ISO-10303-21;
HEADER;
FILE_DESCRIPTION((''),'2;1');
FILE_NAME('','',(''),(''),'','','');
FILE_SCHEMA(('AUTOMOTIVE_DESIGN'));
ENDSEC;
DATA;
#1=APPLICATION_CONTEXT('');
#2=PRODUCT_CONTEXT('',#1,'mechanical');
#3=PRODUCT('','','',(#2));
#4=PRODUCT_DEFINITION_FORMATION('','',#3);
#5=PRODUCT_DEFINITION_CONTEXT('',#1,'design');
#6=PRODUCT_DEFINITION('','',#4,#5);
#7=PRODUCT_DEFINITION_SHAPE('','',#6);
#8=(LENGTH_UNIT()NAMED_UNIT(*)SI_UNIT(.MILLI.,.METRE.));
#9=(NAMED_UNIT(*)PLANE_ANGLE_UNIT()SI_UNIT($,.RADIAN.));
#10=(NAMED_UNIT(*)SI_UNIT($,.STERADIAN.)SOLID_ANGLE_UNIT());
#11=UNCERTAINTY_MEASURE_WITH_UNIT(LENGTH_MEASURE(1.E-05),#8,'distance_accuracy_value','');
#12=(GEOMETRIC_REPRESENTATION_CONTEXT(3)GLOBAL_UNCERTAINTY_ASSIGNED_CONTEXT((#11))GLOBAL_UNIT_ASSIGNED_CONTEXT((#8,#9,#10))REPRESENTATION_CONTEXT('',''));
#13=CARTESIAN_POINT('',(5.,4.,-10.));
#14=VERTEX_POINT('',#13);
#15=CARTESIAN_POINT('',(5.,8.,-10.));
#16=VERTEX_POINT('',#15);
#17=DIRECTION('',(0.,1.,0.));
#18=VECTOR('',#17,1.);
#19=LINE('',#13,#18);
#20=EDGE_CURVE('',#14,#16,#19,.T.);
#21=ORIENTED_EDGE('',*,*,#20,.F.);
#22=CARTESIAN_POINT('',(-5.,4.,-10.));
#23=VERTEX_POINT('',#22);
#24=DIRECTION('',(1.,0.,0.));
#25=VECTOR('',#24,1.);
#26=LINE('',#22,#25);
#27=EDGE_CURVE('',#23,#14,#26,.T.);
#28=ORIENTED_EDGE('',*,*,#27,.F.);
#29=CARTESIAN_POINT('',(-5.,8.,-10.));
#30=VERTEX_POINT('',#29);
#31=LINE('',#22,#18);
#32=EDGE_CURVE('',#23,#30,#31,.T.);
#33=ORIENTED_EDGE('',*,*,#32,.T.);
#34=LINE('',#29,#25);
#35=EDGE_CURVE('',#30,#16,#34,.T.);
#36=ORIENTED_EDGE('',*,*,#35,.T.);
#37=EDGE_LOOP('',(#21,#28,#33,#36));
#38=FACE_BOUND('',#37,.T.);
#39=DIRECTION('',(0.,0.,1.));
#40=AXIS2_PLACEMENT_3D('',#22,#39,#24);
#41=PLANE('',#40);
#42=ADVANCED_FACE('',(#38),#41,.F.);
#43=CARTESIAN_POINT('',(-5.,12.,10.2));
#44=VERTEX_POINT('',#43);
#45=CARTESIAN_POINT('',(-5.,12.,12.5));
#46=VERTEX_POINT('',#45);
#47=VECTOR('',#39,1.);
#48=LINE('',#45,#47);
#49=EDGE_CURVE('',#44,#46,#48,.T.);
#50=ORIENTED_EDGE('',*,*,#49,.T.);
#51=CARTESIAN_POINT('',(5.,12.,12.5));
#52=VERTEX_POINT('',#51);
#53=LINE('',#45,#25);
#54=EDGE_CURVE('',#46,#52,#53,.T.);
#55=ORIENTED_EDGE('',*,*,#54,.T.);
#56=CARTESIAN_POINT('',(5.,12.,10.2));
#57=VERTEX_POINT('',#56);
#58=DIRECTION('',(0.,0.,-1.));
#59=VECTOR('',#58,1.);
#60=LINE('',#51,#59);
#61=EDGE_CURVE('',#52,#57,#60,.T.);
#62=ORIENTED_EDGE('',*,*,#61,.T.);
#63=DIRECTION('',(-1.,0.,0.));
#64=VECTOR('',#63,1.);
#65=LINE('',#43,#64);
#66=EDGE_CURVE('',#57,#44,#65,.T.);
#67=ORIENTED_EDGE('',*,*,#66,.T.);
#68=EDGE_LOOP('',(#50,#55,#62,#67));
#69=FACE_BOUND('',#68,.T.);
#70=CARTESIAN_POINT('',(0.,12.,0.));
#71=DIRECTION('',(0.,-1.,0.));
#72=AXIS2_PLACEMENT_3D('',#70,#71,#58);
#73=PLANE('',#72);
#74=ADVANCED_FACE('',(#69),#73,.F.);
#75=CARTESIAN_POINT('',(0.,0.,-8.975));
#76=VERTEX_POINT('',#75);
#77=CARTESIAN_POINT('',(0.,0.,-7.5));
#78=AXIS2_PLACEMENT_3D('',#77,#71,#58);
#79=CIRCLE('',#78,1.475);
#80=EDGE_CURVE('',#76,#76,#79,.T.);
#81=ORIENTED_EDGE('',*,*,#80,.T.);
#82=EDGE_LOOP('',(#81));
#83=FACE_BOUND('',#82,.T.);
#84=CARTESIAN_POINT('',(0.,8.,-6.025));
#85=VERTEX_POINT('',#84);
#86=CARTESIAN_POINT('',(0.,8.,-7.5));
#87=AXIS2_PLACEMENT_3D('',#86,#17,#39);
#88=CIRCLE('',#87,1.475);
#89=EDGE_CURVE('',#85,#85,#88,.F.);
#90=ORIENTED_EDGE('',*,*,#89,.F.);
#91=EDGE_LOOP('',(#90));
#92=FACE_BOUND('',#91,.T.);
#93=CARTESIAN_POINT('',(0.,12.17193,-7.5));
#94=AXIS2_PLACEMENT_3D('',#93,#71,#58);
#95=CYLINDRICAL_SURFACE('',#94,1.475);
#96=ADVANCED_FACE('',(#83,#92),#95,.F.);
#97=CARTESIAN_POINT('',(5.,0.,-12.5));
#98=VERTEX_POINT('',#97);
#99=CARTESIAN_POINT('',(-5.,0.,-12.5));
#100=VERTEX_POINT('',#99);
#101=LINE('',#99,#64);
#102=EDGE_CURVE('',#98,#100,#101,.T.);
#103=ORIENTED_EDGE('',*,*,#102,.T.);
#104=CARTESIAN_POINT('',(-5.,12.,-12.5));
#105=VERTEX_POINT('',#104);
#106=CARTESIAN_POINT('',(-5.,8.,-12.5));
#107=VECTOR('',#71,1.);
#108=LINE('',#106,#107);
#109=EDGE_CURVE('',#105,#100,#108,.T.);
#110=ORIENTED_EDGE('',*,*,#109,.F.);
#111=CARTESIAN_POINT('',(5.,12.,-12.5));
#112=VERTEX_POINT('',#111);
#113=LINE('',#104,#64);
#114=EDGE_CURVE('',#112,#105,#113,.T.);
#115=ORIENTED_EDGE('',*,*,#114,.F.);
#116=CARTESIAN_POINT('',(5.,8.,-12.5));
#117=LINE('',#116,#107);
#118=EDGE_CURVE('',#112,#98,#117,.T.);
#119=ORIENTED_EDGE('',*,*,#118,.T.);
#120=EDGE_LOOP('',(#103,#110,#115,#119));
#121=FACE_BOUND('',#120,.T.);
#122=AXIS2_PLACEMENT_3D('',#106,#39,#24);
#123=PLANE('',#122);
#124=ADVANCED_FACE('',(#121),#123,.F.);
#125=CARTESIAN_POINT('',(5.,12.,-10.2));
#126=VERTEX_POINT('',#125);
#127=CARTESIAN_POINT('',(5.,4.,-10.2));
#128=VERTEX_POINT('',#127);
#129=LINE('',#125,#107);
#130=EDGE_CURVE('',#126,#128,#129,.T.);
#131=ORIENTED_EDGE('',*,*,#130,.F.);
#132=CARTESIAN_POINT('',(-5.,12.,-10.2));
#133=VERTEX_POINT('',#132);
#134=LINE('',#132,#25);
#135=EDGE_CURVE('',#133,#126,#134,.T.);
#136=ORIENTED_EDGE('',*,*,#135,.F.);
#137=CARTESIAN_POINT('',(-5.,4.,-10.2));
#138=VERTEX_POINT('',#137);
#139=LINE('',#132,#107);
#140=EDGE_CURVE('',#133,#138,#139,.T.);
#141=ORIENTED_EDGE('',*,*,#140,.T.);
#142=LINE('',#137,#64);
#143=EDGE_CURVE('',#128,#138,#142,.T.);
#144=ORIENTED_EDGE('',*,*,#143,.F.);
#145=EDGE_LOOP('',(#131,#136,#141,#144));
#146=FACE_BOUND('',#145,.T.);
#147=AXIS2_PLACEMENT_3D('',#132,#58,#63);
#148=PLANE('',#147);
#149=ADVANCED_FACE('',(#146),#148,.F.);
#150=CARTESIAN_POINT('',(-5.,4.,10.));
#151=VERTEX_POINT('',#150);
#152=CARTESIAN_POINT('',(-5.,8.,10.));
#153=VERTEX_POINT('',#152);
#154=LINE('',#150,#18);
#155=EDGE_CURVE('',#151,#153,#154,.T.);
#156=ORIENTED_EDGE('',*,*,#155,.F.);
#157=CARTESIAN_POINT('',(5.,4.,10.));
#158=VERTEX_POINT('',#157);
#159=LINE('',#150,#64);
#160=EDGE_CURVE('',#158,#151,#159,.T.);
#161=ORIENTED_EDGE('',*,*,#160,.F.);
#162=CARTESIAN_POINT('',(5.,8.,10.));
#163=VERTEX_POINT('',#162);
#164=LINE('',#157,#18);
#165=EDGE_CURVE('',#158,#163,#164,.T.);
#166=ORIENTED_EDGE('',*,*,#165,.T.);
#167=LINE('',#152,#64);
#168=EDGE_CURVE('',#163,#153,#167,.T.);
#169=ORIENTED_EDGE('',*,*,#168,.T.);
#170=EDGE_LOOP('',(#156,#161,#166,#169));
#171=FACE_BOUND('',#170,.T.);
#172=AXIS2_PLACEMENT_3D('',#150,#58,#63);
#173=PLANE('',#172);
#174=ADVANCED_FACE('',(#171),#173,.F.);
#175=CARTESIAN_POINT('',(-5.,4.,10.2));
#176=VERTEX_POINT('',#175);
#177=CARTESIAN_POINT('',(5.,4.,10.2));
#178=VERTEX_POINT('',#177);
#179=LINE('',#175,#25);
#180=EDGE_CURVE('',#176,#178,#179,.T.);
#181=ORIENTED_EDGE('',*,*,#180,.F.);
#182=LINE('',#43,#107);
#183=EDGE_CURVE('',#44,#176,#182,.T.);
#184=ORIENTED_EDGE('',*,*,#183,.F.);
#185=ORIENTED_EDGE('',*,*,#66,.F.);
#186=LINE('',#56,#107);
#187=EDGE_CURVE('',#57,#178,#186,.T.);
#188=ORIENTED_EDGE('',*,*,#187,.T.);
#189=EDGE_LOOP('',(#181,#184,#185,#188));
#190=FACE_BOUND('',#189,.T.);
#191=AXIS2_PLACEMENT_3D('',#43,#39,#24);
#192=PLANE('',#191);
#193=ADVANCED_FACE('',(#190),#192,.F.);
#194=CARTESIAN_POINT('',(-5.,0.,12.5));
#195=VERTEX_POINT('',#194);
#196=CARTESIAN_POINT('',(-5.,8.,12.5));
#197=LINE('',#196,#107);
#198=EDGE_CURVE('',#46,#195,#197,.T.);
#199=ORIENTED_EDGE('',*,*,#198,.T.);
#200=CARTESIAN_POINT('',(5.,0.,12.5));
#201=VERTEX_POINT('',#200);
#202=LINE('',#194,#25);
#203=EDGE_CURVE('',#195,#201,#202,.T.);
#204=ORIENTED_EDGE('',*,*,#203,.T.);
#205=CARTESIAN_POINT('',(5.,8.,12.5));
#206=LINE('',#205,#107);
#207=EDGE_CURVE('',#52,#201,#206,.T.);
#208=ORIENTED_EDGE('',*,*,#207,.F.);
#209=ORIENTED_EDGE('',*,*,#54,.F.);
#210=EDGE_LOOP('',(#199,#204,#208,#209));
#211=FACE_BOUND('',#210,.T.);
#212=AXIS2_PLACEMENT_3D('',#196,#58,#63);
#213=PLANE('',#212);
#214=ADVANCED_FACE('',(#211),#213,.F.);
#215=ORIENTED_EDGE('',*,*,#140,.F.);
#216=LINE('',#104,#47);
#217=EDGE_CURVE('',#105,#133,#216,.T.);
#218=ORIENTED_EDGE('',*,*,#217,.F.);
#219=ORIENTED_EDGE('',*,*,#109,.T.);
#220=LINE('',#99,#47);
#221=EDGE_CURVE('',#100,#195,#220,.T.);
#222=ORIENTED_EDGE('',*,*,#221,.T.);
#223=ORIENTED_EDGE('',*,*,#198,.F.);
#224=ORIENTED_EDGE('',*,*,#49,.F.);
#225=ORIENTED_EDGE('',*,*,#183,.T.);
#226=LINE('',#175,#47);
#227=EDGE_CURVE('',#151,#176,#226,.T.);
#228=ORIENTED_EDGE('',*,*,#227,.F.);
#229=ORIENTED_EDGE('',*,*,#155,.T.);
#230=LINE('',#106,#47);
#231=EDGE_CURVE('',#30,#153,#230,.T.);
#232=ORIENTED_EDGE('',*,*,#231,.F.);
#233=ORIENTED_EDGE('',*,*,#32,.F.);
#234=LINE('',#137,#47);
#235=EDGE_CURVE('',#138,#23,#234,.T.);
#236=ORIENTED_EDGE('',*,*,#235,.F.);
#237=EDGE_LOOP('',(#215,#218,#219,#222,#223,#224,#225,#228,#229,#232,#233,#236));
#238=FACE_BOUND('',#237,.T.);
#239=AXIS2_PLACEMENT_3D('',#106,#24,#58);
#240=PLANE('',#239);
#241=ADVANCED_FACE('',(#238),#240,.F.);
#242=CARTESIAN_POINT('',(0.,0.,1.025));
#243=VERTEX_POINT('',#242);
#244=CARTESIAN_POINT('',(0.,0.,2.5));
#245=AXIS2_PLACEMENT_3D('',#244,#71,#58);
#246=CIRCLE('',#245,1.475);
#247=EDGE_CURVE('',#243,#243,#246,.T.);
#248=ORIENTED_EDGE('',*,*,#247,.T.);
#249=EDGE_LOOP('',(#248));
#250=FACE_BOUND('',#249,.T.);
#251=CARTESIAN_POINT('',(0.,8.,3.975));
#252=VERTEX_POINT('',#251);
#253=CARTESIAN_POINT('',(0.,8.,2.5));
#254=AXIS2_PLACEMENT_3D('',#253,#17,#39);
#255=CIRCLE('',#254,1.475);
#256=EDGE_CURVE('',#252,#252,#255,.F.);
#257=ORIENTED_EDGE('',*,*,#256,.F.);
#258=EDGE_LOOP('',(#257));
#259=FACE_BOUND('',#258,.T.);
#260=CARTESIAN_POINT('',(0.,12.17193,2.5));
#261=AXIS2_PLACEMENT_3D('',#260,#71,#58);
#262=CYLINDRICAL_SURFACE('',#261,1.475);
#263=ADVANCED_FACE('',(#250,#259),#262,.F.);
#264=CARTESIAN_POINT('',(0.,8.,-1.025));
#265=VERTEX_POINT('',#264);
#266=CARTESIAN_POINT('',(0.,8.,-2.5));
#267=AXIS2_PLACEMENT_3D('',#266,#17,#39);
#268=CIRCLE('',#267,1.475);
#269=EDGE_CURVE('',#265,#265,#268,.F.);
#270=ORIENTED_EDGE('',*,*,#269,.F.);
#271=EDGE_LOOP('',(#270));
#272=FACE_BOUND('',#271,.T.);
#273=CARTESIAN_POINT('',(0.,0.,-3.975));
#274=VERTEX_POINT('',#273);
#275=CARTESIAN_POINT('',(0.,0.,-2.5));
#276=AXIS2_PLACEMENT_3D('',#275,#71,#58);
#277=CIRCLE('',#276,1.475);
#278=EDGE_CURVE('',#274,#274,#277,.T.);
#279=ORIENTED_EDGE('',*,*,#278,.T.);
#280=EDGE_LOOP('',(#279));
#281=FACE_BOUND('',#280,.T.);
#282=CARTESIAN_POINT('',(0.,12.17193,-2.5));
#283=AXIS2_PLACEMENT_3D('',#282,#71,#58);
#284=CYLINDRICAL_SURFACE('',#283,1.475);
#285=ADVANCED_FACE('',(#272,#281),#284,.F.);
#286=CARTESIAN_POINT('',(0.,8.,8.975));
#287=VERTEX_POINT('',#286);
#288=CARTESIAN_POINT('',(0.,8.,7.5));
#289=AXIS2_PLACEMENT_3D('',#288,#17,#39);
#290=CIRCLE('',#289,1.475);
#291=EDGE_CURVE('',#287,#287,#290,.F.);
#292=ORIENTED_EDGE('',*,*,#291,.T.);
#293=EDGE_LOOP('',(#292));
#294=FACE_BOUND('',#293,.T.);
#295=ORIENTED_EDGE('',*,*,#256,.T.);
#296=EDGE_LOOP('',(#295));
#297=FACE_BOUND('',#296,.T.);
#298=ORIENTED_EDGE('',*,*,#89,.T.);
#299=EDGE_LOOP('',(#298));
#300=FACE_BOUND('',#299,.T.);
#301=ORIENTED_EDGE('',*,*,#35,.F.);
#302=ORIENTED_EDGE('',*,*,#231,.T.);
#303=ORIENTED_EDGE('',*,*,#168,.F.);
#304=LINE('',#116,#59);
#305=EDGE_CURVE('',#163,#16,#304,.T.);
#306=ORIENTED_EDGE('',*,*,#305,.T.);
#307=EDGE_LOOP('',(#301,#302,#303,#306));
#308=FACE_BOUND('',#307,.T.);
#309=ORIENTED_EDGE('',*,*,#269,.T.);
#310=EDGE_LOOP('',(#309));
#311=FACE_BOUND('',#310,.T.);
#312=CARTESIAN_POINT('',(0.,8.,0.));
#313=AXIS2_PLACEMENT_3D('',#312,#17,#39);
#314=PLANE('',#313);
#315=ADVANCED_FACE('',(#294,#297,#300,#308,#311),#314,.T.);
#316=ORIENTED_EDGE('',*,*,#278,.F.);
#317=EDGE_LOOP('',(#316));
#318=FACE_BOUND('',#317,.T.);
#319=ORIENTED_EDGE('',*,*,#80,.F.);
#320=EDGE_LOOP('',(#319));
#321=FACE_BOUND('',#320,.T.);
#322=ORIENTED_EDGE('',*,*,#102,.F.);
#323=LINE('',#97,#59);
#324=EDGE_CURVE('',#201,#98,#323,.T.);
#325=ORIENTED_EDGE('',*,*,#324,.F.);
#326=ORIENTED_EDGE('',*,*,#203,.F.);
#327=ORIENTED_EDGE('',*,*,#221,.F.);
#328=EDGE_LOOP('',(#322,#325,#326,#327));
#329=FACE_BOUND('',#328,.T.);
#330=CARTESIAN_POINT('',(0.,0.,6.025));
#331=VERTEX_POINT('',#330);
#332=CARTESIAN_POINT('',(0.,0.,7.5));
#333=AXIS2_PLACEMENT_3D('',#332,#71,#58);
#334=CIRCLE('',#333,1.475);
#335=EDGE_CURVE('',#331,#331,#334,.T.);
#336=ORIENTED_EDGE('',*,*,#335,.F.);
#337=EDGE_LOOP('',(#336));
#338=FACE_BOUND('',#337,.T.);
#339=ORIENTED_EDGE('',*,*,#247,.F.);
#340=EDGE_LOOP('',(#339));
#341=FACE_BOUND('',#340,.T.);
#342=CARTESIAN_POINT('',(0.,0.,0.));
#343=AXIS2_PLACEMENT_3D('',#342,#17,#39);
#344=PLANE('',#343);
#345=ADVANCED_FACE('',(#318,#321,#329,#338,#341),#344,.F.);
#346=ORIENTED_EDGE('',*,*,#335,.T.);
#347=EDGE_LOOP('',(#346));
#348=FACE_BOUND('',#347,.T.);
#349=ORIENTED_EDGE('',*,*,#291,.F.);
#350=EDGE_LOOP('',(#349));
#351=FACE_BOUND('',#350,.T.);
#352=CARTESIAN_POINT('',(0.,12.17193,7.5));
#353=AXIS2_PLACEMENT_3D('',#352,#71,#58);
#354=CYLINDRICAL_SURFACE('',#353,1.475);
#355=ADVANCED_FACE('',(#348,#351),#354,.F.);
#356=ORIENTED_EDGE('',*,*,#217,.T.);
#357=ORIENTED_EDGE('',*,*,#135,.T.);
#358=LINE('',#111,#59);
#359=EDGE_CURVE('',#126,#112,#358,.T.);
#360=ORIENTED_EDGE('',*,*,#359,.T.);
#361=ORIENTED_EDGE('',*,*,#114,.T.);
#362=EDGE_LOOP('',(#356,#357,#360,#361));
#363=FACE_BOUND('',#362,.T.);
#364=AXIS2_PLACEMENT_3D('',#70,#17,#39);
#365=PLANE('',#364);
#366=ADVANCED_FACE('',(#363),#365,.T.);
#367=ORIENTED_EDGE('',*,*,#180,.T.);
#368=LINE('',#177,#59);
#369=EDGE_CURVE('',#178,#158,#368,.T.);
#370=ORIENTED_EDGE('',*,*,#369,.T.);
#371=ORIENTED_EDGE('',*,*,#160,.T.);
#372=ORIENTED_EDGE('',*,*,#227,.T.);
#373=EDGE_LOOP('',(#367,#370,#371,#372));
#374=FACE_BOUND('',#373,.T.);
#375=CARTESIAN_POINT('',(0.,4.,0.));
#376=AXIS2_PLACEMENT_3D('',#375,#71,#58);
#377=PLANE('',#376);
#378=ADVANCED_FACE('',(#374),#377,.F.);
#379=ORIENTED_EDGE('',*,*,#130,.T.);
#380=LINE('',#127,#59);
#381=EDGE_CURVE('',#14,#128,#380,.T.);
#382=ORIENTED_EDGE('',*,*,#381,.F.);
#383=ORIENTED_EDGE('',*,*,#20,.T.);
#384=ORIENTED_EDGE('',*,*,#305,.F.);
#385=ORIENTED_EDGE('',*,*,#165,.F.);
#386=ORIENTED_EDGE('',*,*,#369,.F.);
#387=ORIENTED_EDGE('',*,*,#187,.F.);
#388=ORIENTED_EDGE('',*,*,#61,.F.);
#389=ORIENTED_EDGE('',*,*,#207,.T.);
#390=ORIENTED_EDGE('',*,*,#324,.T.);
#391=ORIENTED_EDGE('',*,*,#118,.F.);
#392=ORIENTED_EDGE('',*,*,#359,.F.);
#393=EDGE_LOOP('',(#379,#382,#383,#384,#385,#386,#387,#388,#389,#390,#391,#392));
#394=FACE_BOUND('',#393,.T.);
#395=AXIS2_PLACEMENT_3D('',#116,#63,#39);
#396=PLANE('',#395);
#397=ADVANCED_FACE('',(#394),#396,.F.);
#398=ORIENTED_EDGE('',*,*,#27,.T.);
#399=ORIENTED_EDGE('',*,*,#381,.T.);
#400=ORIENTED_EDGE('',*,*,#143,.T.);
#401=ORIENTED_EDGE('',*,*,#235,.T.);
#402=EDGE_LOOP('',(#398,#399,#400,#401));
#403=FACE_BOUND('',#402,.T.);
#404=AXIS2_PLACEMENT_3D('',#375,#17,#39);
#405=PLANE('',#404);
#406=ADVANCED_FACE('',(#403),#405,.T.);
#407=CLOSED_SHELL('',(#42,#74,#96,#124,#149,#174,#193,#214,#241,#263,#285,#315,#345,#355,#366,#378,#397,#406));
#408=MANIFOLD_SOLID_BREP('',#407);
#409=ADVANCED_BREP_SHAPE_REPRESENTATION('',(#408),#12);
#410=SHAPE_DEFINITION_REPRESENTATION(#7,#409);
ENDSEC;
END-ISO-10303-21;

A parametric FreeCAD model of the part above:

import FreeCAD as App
import Part
import Sketcher
from FreeCAD import Vector
Q = App.Units.Quantity


def add_polygon(sketch, points):
    """Adds a closed chain of lines whose ends are joined by coincident constraints."""
    first, n = sketch.GeometryCount, len(points)
    for a, b in zip(points, points[1:] + points[:1]):
        sketch.addGeometry(Part.LineSegment(App.Vector(*a, 0), App.Vector(*b, 0)), False)
    for i in range(n):
        sketch.addConstraint(Sketcher.Constraint("Coincident", first + i, 2, first + (i + 1) % n, 1))

doc = App.newDocument("Part")
params = doc.addObject("Spreadsheet::Sheet", "Params")
for row, (alias, value) in enumerate([
    ("sketch1_width", "10 mm"),
    ("sketch1_height", "25 mm"),
    ("pad1_length", "8 mm"),
    ("sketch2_width", "10 mm"),
    ("sketch2_height", "2.3 mm"),
    ("pad2_length", "4 mm"),
    ("sketch3_width", "10 mm"),
    ("sketch3_height", "0.2 mm"),
    ("pocket1_length", "4 mm"),
    ("sketch4_diameter", "2.95 mm"),
    ("pocket2_length", "8 mm"),
    ("linearpattern_pitch", "5 mm"),
], start=1):
    params.set(f"A{row}", alias)
    params.set(f"B{row}", "=" + value)
    params.setAlias(f"B{row}", alias)

body = doc.addObject("PartDesign::Body", "Body")

# Sketch on XZ plane
sketch1 = doc.addObject("Sketcher::SketchObject", "Sketch")
body.addObject(sketch1)
sketch1.AttachmentSupport = (doc.XZ_Plane, [""])
sketch1.MapMode = "FlatFace"
add_polygon(sketch1, [(-5, -12), (-5, 12), (5, 12), (5, -12)])  # lines 0-3
sketch1.addConstraint(Sketcher.Constraint("Vertical", 0))
sketch1.addConstraint(Sketcher.Constraint("Horizontal", 1))
sketch1.addConstraint(Sketcher.Constraint("Vertical", 2))
sketch1.addConstraint(Sketcher.Constraint("Horizontal", 3))
sketch1.addConstraint(Sketcher.Constraint("Symmetric", 0, 2, 2, 2, -1, 1))
sketch1.addConstraint(Sketcher.Constraint("DistanceX", 1, 1, 1, 2, Q("10 mm")))
sketch1.addConstraint(Sketcher.Constraint("DistanceY", 0, 1, 0, 2, Q("25 mm")))
sketch1.setExpression("Constraints[9]", "Params.sketch1_width")
sketch1.setExpression("Constraints[10]", "Params.sketch1_height")
pad1 = doc.addObject("PartDesign::Pad", "Pad")
body.addObject(pad1)
pad1.Profile = sketch1
pad1.setExpression("Length", "Params.pad1_length")
pad1.Reversed = True

# Sketch on XZ plane
sketch2 = doc.addObject("Sketcher::SketchObject", "Sketch001")
body.addObject(sketch2)
sketch2.AttachmentSupport = (doc.XZ_Plane, [""])
sketch2.MapMode = "FlatFace"
sketch2.AttachmentOffset = App.Placement(Vector(0, 0, -8), App.Rotation())
add_polygon(sketch2, [(-5, -12.5), (-5, -10.2), (5, -10.2), (5, -12.5)])  # lines 0-3
add_polygon(sketch2, [(-5, 10.2), (-5, 12.5), (5, 12.5), (5, 10.2)])  # lines 4-7
sketch2.addConstraint(Sketcher.Constraint("Vertical", 0))
sketch2.addConstraint(Sketcher.Constraint("Horizontal", 1))
sketch2.addConstraint(Sketcher.Constraint("Vertical", 2))
sketch2.addConstraint(Sketcher.Constraint("Horizontal", 3))
sketch2.addConstraint(Sketcher.Constraint("Vertical", 4))
sketch2.addConstraint(Sketcher.Constraint("Horizontal", 5))
sketch2.addConstraint(Sketcher.Constraint("Vertical", 6))
sketch2.addConstraint(Sketcher.Constraint("Horizontal", 7))
sketch2.addConstraint(Sketcher.Constraint("Symmetric", 2, 2, 4, 2, -1, 1))
sketch2.addConstraint(Sketcher.Constraint("Symmetric", 0, 2, 6, 2, -1, 1))
sketch2.addConstraint(Sketcher.Constraint("Vertical", 3, 2, 4, 2))
sketch2.addConstraint(Sketcher.Constraint("DistanceX", 1, 1, 1, 2, Q("10 mm")))
sketch2.addConstraint(Sketcher.Constraint("DistanceY", 0, 1, 0, 2, Q("2.3 mm")))
sketch2.addConstraint(Sketcher.Constraint("DistanceY", 3, 2, 4, 2, Q("25 mm")))
sketch2.setExpression("Constraints[19]", "Params.sketch2_width")
sketch2.setExpression("Constraints[20]", "Params.sketch2_height")
pad2 = doc.addObject("PartDesign::Pad", "Pad001")
body.addObject(pad2)
pad2.Profile = sketch2
pad2.setExpression("Length", "Params.pad2_length")
pad2.Reversed = True

# Sketch on XZ plane
sketch3 = doc.addObject("Sketcher::SketchObject", "Sketch002")
body.addObject(sketch3)
sketch3.AttachmentSupport = (doc.XZ_Plane, [""])
sketch3.MapMode = "FlatFace"
sketch3.AttachmentOffset = App.Placement(Vector(0, 0, -8), App.Rotation())
add_polygon(sketch3, [(-5, -10.2), (-5, -10), (5, -10), (5, -10.2)])  # lines 0-3
add_polygon(sketch3, [(-5, 10), (-5, 10.2), (5, 10.2), (5, 10)])  # lines 4-7
sketch3.addConstraint(Sketcher.Constraint("Vertical", 0))
sketch3.addConstraint(Sketcher.Constraint("Horizontal", 1))
sketch3.addConstraint(Sketcher.Constraint("Vertical", 2))
sketch3.addConstraint(Sketcher.Constraint("Horizontal", 3))
sketch3.addConstraint(Sketcher.Constraint("Vertical", 4))
sketch3.addConstraint(Sketcher.Constraint("Horizontal", 5))
sketch3.addConstraint(Sketcher.Constraint("Vertical", 6))
sketch3.addConstraint(Sketcher.Constraint("Horizontal", 7))
sketch3.addConstraint(Sketcher.Constraint("Symmetric", 2, 2, 4, 2, -1, 1))
sketch3.addConstraint(Sketcher.Constraint("Symmetric", 0, 2, 6, 2, -1, 1))
sketch3.addConstraint(Sketcher.Constraint("Vertical", 3, 2, 4, 2))
sketch3.addConstraint(Sketcher.Constraint("DistanceX", 1, 1, 1, 2, Q("10 mm")))
sketch3.addConstraint(Sketcher.Constraint("DistanceY", 0, 1, 0, 2, Q("0.2 mm")))
sketch3.addConstraint(Sketcher.Constraint("DistanceY", 0, 2, -1, 1, Q("10 mm")))
sketch3.setExpression("Constraints[19]", "Params.sketch3_width")
sketch3.setExpression("Constraints[20]", "Params.sketch3_height")
pocket1 = doc.addObject("PartDesign::Pocket", "Pocket")
body.addObject(pocket1)
pocket1.Profile = sketch3
pocket1.setExpression("Length", "Params.pocket1_length")
pocket1.Reversed = True

# Sketch on XZ plane
sketch4 = doc.addObject("Sketcher::SketchObject", "Sketch003")
body.addObject(sketch4)
sketch4.AttachmentSupport = (doc.XZ_Plane, [""])
sketch4.MapMode = "FlatFace"
sketch4.addGeometry(Part.Circle(Vector(0, 7.5, 0), Vector(0, 0, 1), 1.5), False)
sketch4.addConstraint(Sketcher.Constraint("PointOnObject", 0, 3, -2))
sketch4.addConstraint(Sketcher.Constraint("Diameter", 0, Q("2.95 mm")))
sketch4.addConstraint(Sketcher.Constraint("DistanceY", -1, 1, 0, 3, Q("7.5 mm")))
sketch4.setExpression("Constraints[1]", "Params.sketch4_diameter")
pocket2 = doc.addObject("PartDesign::Pocket", "Pocket001")
body.addObject(pocket2)
pocket2.Profile = sketch4
pocket2.setExpression("Length", "Params.pocket2_length")
doc.recompute()

linearpattern = doc.addObject("PartDesign::LinearPattern", "LinearPattern")
body.addObject(linearpattern)
linearpattern.Originals = [pocket2]
linearpattern.Direction = (doc.Z_Axis, [""])
linearpattern.Mode = "offset"
linearpattern.setExpression("Offset", "Params.linearpattern_pitch")
linearpattern.Occurrences = 4
linearpattern.Reversed = True
body.Tip = linearpattern

doc.recompute()
